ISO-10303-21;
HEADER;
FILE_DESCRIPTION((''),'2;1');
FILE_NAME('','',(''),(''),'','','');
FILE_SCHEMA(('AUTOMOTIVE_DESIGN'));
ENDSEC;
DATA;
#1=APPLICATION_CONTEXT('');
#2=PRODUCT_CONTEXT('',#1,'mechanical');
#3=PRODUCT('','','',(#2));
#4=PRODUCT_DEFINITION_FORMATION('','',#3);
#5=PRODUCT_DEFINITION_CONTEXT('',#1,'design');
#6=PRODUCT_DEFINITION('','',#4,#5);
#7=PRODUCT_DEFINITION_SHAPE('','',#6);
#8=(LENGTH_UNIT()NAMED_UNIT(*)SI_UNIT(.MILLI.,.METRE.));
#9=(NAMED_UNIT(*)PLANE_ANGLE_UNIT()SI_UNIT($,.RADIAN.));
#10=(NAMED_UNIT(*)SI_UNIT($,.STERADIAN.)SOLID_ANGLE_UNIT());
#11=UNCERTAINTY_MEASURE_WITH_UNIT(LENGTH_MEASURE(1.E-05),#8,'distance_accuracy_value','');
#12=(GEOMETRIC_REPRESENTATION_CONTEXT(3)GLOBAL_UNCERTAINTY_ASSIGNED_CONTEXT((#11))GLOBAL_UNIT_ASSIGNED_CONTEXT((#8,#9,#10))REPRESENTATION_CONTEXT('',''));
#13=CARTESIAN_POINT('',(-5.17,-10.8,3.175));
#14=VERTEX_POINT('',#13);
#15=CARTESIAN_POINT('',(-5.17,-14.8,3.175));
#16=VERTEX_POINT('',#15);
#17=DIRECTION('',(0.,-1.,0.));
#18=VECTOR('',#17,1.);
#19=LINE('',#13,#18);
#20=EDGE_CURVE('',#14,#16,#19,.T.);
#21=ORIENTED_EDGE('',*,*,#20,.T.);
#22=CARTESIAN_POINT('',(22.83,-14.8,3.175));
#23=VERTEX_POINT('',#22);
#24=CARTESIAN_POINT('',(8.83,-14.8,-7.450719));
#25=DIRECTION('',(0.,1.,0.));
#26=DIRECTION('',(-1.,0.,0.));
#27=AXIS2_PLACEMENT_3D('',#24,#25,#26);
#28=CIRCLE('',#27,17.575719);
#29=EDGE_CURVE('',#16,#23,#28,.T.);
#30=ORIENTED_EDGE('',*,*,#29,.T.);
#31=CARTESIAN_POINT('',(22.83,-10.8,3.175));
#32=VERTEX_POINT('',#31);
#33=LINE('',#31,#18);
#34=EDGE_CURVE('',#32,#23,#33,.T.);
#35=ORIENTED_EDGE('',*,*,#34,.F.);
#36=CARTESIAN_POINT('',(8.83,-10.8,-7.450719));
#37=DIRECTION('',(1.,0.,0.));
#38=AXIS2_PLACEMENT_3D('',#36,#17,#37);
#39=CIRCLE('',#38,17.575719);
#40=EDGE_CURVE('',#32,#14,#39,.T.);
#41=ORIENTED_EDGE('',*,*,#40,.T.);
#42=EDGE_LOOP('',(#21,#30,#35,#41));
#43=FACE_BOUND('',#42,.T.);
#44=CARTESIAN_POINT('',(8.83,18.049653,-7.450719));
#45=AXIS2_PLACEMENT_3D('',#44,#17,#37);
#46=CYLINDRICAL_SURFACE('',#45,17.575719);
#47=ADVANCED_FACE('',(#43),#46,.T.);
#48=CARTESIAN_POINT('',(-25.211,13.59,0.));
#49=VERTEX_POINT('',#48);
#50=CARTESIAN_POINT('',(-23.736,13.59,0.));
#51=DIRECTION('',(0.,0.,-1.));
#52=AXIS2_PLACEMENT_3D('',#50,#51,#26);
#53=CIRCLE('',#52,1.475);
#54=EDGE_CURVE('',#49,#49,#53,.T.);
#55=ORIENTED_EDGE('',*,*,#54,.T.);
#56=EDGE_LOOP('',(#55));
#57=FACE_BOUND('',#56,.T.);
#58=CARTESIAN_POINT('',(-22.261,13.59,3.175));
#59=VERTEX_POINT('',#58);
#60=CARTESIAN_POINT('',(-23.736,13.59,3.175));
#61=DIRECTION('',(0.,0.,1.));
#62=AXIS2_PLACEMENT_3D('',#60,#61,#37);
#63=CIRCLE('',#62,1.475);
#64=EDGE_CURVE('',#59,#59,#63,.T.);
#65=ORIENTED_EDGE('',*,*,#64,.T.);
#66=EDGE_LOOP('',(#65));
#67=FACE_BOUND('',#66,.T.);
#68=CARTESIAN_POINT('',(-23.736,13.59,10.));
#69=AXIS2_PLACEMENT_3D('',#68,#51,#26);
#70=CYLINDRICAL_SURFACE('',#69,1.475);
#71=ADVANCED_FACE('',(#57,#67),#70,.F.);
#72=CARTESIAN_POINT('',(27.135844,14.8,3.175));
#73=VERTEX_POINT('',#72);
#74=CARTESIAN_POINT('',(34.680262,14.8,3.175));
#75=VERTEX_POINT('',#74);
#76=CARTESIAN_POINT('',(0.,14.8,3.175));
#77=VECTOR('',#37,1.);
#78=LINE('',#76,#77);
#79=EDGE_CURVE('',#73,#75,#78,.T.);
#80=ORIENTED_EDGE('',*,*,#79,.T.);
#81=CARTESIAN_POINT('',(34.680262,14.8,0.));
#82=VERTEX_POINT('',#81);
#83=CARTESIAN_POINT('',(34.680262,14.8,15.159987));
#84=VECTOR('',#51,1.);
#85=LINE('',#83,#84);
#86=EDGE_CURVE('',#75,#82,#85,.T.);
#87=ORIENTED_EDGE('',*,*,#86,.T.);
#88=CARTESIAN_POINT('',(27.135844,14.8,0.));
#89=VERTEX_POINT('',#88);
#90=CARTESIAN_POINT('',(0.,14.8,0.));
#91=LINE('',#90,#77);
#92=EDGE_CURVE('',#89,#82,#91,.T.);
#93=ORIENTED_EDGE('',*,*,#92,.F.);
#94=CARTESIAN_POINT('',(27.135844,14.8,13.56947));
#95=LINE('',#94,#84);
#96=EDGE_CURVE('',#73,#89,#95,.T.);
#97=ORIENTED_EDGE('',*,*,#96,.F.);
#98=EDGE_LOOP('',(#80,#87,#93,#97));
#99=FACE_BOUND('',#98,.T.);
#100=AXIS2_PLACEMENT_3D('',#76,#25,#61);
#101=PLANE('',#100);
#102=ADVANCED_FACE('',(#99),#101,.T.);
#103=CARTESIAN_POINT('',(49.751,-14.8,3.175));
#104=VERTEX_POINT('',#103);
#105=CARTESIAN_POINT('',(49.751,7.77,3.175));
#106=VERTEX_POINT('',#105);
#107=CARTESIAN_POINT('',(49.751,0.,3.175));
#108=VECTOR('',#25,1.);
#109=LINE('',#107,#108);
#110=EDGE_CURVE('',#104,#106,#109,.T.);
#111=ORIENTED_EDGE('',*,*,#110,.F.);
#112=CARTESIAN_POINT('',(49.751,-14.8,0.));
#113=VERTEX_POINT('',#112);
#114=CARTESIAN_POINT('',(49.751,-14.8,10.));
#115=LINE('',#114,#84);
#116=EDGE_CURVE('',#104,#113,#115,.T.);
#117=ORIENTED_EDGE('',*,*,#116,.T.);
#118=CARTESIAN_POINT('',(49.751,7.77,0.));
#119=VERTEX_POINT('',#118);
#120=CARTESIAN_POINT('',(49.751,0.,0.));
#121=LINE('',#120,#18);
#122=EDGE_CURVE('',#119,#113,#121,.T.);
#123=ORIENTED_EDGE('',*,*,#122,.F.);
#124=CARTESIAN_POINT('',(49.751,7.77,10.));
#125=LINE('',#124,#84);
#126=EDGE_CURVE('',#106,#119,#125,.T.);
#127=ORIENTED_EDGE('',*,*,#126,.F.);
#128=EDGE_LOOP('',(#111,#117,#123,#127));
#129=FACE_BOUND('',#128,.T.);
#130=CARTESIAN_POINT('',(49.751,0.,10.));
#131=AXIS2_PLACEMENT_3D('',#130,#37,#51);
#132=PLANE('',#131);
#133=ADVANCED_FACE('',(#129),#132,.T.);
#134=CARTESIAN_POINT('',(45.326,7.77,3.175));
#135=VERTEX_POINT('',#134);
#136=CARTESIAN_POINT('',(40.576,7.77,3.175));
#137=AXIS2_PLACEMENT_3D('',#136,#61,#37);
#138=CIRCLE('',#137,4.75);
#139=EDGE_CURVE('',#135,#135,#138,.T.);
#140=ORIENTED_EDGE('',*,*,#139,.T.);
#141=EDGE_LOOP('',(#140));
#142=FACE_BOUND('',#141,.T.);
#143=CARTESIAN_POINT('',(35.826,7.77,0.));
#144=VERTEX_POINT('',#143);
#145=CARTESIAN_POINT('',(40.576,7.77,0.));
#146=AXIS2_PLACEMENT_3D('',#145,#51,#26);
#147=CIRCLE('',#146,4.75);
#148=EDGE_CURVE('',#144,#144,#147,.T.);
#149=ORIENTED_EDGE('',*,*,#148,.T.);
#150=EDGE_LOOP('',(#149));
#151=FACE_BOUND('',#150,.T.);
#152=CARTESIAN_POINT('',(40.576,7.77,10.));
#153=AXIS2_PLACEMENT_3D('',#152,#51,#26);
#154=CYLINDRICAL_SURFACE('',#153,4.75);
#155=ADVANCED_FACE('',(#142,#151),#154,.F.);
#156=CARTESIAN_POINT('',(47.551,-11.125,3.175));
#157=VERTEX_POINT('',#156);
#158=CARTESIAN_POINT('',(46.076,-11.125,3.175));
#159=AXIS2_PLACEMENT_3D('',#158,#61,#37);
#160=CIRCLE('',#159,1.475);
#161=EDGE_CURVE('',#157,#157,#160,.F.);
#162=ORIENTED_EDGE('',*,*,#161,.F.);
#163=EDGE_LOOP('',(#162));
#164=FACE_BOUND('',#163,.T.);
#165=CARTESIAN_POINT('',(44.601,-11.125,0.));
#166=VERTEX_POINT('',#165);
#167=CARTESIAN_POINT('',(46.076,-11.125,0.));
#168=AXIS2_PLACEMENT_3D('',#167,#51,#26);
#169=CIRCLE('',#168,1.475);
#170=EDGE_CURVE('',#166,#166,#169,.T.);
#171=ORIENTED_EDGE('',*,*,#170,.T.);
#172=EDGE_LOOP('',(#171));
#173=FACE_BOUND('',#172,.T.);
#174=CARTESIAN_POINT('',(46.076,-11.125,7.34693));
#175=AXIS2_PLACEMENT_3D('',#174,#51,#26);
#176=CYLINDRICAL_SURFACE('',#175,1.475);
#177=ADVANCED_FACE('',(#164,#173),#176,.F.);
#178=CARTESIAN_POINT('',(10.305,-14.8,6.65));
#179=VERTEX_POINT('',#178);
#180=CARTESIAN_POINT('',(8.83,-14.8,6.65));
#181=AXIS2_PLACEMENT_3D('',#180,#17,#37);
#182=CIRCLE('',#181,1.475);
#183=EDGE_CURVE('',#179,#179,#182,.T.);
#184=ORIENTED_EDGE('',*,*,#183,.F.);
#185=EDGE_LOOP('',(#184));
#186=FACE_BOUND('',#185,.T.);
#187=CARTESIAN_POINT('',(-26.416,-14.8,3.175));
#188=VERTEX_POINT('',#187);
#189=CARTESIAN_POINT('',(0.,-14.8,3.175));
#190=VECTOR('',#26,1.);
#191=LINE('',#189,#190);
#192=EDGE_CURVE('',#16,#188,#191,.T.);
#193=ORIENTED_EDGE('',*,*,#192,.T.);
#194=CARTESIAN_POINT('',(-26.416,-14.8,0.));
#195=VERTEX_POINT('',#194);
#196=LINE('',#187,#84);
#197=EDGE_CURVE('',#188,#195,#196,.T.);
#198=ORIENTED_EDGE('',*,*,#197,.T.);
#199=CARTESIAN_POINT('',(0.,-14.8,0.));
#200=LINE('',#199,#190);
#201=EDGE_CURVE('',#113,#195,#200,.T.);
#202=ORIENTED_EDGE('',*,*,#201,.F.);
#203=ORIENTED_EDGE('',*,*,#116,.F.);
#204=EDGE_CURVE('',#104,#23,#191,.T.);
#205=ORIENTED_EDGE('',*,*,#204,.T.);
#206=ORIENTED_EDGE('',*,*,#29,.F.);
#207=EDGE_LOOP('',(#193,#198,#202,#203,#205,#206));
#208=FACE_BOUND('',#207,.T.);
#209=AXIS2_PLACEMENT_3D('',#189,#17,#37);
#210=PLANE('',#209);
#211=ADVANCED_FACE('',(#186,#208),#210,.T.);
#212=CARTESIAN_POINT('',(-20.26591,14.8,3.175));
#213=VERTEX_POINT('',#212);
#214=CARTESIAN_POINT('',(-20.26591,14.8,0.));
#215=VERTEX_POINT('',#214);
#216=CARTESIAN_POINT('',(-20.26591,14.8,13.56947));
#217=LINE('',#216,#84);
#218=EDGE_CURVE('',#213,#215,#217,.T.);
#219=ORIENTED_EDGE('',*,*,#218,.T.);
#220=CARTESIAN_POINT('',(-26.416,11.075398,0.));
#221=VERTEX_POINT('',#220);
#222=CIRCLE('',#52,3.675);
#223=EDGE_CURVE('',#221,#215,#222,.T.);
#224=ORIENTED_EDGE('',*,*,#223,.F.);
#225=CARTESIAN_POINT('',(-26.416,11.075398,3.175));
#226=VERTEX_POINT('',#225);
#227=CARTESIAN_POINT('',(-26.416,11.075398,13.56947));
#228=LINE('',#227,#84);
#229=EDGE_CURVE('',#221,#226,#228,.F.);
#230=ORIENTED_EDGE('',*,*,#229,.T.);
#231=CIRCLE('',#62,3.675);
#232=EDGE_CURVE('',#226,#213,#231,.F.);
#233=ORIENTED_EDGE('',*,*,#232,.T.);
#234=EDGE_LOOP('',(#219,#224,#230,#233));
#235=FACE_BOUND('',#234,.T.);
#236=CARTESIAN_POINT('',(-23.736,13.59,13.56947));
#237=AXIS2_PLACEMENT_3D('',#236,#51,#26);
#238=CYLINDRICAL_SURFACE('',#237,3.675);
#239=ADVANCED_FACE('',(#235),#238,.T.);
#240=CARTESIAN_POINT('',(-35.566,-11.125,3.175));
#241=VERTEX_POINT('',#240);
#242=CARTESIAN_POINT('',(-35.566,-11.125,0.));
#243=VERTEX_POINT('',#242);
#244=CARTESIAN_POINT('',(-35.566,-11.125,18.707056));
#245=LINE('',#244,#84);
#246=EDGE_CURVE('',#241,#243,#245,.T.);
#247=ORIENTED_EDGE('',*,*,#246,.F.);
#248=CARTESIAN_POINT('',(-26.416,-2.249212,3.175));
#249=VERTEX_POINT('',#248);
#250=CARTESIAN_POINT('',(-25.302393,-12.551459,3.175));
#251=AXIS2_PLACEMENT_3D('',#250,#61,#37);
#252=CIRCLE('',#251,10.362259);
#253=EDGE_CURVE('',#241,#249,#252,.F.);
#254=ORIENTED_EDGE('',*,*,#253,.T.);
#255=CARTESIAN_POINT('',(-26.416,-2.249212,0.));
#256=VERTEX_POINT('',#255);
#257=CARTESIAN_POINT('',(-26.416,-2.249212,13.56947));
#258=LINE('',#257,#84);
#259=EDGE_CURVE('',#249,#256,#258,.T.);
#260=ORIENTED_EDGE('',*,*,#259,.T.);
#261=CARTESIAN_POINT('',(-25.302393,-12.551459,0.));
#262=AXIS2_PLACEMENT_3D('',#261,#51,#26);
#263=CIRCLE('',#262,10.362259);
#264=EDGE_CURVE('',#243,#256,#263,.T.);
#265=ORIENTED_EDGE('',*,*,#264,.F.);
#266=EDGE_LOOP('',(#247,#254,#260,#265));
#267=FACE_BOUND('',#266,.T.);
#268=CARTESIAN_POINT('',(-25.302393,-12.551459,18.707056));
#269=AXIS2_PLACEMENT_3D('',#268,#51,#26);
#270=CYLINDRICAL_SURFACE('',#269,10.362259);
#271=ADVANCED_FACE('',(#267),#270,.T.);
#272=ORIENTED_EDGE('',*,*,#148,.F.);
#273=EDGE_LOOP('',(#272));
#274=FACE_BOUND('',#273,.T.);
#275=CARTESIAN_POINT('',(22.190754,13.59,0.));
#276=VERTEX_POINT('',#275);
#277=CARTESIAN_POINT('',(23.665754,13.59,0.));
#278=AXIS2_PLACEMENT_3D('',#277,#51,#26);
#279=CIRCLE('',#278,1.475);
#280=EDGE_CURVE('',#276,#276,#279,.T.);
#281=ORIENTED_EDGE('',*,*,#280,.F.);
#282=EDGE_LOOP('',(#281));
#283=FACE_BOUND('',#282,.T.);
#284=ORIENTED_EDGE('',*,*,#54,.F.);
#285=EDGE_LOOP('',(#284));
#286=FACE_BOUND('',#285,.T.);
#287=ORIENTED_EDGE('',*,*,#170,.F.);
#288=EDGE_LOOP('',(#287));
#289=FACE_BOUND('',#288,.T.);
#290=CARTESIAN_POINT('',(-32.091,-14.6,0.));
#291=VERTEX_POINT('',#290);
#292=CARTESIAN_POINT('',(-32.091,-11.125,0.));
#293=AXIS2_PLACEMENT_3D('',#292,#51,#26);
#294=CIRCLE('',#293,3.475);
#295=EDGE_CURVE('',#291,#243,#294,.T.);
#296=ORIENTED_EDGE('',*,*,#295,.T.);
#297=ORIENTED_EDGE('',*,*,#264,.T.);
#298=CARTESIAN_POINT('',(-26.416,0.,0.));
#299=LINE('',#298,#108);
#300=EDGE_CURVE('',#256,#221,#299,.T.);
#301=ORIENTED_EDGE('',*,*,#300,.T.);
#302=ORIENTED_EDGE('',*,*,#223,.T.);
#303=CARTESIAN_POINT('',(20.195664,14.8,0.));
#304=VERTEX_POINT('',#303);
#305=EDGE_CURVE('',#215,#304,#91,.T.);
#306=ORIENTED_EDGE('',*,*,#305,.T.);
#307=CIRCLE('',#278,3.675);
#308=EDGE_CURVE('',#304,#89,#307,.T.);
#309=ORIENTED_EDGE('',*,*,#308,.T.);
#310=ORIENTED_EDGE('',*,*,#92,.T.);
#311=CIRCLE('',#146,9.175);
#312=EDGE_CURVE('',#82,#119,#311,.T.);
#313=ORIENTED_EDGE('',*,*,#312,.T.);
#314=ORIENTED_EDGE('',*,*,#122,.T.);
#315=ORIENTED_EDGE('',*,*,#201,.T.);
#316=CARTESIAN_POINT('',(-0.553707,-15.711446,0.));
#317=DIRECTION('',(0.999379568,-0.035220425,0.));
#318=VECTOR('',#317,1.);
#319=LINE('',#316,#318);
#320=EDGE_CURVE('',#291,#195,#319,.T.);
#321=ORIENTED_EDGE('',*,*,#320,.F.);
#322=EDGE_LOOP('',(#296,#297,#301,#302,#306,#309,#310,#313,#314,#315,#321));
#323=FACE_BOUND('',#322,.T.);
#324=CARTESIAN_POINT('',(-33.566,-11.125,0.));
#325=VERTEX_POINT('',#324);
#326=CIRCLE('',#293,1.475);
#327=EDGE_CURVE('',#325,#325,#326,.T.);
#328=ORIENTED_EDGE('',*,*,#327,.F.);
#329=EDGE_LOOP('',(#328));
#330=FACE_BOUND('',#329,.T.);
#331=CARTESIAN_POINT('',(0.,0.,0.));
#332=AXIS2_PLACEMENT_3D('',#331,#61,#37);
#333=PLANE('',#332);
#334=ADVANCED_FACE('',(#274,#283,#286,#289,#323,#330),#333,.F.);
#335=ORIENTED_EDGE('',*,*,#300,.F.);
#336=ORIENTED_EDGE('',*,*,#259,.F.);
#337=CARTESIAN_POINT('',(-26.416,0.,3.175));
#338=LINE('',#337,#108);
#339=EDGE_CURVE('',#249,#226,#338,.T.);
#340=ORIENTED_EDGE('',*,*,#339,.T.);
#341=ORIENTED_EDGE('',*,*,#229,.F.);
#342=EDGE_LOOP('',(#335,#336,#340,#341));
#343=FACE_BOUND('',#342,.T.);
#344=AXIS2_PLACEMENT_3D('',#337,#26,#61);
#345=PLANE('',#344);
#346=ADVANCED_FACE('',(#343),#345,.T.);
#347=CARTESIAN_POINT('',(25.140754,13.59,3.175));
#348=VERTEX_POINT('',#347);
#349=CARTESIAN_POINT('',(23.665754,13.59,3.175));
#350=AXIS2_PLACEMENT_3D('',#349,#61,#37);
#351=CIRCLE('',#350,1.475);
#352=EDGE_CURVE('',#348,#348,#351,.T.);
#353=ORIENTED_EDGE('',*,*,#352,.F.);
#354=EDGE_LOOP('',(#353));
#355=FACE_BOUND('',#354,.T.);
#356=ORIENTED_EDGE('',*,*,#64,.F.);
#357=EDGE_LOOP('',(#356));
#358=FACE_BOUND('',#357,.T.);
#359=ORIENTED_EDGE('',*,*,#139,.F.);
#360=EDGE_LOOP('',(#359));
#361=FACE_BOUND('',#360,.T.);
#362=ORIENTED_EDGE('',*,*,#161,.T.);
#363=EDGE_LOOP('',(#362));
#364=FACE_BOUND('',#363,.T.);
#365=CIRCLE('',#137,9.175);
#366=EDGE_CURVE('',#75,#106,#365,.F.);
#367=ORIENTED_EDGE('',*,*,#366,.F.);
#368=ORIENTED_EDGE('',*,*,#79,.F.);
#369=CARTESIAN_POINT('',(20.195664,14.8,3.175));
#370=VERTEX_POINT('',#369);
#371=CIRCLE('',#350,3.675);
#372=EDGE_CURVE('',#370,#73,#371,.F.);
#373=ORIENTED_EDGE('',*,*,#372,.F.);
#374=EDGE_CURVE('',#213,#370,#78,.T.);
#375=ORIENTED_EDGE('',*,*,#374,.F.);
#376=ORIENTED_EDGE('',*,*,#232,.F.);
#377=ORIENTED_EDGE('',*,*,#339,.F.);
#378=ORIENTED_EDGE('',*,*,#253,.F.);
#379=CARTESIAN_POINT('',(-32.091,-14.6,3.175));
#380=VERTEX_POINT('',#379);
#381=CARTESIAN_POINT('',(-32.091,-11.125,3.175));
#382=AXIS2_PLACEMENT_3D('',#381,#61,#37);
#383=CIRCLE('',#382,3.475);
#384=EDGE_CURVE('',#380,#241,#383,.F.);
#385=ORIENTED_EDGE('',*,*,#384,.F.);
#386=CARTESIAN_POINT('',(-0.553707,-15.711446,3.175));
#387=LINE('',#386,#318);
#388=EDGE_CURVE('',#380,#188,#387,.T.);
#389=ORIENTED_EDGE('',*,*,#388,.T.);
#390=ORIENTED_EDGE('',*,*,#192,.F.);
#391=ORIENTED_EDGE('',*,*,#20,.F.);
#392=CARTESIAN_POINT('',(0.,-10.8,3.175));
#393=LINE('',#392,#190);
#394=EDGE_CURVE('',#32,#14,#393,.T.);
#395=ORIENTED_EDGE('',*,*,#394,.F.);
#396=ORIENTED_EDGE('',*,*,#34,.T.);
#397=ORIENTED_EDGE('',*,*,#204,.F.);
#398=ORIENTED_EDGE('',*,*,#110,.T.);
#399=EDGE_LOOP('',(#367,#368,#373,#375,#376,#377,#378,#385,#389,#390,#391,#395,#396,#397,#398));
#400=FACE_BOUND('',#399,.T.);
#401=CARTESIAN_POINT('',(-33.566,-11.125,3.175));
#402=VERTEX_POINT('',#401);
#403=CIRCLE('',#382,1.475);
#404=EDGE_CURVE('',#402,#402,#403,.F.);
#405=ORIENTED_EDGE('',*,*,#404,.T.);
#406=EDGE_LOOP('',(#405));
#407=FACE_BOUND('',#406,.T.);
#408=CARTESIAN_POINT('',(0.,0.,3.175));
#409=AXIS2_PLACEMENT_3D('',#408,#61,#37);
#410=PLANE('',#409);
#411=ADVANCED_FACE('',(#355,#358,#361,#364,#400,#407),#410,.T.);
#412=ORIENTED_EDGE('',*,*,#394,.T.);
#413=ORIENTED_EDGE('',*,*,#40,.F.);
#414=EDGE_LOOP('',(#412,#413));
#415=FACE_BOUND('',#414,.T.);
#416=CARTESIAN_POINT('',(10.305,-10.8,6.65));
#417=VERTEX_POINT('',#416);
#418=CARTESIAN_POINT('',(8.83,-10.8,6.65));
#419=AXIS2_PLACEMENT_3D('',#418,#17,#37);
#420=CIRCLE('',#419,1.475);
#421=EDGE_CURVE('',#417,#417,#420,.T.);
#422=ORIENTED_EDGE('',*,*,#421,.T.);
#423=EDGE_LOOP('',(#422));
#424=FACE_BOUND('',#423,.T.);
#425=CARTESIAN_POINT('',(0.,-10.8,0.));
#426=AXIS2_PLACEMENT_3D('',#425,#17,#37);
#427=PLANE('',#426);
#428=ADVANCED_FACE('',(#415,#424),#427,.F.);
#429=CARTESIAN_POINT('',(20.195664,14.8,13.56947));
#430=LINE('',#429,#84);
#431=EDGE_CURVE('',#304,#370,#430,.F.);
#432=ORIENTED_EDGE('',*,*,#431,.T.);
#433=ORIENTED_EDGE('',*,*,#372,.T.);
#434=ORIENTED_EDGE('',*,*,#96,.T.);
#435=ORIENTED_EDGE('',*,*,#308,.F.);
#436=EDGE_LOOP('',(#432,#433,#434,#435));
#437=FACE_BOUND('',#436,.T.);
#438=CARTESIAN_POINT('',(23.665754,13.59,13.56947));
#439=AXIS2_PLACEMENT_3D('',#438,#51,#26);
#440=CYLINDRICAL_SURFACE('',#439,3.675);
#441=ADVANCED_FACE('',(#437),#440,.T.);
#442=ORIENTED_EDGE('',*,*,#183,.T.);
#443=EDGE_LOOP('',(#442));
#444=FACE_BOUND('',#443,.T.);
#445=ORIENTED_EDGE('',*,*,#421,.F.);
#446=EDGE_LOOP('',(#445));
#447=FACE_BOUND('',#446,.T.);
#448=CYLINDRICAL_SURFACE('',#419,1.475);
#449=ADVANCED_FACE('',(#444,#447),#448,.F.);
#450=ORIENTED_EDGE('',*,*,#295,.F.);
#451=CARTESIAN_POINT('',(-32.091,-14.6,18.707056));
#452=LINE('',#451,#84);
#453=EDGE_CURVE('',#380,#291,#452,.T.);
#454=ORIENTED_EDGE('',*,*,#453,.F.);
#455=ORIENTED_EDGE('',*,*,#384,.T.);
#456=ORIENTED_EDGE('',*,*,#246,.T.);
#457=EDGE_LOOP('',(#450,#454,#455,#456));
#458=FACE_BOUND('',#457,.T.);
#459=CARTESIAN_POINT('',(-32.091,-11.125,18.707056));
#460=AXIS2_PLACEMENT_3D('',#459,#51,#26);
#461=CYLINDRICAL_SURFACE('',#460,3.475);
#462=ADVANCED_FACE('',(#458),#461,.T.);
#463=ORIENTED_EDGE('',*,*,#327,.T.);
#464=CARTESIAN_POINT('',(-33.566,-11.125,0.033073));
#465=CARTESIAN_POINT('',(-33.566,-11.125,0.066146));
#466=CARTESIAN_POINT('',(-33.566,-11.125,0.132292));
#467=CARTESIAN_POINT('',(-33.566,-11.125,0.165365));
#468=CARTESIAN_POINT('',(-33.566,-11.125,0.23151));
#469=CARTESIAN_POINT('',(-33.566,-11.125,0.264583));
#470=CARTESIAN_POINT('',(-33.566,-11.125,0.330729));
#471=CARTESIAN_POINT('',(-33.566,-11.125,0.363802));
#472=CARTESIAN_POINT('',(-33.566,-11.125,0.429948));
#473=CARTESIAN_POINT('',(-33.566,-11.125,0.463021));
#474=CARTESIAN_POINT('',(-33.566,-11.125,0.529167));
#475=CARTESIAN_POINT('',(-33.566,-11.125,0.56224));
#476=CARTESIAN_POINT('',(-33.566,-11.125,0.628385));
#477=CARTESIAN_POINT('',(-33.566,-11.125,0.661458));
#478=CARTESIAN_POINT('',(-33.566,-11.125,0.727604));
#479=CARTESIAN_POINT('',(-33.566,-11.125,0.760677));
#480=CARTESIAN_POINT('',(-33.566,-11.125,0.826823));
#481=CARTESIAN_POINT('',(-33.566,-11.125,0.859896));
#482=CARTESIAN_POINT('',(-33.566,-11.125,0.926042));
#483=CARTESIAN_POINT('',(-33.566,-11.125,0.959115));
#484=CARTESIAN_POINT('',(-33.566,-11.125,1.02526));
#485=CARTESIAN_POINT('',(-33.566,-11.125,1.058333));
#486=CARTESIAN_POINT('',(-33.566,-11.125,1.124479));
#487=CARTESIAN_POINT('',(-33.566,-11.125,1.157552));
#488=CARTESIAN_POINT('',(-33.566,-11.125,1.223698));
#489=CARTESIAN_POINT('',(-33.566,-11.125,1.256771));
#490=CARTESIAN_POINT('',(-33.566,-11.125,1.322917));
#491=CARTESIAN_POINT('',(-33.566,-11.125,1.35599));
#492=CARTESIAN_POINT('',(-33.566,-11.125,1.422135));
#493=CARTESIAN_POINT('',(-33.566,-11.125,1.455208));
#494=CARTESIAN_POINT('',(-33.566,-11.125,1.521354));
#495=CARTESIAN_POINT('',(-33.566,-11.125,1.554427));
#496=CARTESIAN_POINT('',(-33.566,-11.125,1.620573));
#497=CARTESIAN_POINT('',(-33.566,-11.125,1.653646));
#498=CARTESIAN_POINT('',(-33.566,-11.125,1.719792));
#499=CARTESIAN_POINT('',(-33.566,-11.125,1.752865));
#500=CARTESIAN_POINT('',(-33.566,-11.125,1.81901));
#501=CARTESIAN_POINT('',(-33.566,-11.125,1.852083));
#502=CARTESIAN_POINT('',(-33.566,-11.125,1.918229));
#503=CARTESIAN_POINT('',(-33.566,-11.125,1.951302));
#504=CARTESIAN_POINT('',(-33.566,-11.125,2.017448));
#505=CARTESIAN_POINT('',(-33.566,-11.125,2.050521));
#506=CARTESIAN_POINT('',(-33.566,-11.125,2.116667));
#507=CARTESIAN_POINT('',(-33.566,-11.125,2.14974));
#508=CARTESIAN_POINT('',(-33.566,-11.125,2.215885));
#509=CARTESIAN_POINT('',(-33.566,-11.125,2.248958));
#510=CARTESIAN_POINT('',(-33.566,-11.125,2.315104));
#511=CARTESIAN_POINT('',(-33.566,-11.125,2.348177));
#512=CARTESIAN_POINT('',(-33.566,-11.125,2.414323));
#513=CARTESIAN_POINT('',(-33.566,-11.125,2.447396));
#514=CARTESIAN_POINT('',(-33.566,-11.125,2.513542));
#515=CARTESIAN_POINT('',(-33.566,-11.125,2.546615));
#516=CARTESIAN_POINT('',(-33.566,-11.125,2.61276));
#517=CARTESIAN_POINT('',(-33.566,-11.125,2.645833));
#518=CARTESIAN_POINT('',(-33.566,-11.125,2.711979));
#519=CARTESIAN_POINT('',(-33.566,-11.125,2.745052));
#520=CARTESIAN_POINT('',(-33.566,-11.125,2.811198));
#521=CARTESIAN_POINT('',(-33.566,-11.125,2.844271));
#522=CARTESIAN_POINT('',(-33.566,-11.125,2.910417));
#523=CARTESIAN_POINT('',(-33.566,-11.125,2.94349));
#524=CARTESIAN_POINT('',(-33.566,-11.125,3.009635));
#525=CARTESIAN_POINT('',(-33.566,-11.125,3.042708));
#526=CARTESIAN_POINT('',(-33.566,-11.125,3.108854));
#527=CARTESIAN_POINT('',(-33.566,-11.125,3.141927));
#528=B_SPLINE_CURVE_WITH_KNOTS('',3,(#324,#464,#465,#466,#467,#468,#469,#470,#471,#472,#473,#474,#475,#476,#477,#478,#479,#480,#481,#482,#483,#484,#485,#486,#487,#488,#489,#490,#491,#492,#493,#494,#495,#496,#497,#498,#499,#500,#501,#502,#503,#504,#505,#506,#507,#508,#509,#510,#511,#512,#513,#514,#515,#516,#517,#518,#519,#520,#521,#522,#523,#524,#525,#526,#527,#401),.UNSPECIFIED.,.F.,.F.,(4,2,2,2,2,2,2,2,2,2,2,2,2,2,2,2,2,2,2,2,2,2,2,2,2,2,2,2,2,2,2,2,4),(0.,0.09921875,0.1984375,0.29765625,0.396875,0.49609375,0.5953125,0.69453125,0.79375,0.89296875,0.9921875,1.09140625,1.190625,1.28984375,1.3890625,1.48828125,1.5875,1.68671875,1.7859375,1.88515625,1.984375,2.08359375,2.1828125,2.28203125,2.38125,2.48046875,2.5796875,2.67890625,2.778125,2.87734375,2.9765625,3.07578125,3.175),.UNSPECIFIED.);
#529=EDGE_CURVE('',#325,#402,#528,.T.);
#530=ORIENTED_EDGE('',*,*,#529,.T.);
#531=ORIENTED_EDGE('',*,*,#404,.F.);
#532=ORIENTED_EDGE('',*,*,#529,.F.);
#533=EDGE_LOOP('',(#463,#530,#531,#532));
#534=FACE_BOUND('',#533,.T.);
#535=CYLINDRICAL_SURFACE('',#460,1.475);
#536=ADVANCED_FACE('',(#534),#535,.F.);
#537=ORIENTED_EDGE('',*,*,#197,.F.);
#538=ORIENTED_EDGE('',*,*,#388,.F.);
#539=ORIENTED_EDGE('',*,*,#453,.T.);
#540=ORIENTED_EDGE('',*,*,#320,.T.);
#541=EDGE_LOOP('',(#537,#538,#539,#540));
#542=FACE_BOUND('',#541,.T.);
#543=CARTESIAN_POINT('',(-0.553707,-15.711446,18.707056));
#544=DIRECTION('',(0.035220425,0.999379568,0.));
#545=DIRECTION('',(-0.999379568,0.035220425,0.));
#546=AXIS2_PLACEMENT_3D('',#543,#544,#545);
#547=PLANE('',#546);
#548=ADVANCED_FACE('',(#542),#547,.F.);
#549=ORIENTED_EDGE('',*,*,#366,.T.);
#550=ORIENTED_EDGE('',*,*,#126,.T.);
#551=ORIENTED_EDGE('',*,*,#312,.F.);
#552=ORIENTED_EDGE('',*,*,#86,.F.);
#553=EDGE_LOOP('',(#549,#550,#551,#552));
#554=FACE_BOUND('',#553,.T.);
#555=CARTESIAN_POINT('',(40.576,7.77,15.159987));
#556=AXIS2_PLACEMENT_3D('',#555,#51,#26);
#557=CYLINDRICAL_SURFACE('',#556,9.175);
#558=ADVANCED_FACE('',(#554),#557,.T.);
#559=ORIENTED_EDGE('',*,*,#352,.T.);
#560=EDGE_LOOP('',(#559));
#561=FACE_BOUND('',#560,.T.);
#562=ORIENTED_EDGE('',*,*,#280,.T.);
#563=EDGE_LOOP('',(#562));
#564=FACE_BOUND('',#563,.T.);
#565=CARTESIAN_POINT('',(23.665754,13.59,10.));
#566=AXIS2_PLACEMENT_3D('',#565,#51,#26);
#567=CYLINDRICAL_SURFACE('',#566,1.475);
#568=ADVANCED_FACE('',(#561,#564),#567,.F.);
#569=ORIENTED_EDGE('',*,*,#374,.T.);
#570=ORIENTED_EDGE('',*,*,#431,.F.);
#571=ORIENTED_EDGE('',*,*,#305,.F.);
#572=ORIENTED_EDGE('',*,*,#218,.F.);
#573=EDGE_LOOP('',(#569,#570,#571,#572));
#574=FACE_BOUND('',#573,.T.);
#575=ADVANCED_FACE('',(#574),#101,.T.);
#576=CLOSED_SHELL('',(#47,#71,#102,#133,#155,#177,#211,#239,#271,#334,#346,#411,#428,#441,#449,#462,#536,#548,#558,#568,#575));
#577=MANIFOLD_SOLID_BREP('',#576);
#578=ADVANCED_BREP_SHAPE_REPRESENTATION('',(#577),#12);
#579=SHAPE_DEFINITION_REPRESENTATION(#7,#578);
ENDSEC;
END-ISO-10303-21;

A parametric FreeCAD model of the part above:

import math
import FreeCAD as App
import Part
import Sketcher

V = App.Vector
Q = App.Units.Quantity


def add_polygon(sketch, points):
    """Adds a closed chain of lines whose ends are joined by coincident constraints."""
    first, n = sketch.GeometryCount, len(points)
    for a, b in zip(points, points[1:] + points[:1]):
        sketch.addGeometry(Part.LineSegment(App.Vector(*a, 0), App.Vector(*b, 0)), False)
    for i in range(n):
        sketch.addConstraint(Sketcher.Constraint("Coincident", first + i, 2, first + (i + 1) % n, 1))

doc = App.newDocument("Part")
body = doc.addObject("PartDesign::Body", "Body")

sketch1 = doc.addObject("Sketcher::SketchObject", "Sketch")
body.addObject(sketch1)
sketch1.AttachmentSupport = (doc.XY_Plane, [""])
sketch1.MapMode = "FlatFace"
add_polygon(sketch1, [(-26.416, -14.8), (26.416, -14.8), (26.416, 14.8), (-26.416, 14.8)])
add_polygon(sketch1, [(-20.15, -9.8), (-20.15, 9.8), (20.15, 9.8), (20.15, -9.8)])
sketch1.addGeometry(Part.Circle(V(-23.95, -4.974, 0), V(0, 0, 1), 1.675), False)
sketch1.addGeometry(Part.Circle(V(-23.95, 4.974, 0), V(0, 0, 1), 1.675), False)
sketch1.addGeometry(Part.Circle(V(23.95, 4.974, 0), V(0, 0, 1), 1.675), False)
sketch1.addGeometry(Part.Circle(V(23.95, -4.974, 0), V(0, 0, 1), 1.675), False)
sketch1.addConstraint(Sketcher.Constraint("Horizontal", 0))
sketch1.addConstraint(Sketcher.Constraint("Vertical", 1))
sketch1.addConstraint(Sketcher.Constraint("Horizontal", 2))
sketch1.addConstraint(Sketcher.Constraint("Vertical", 3))
sketch1.addConstraint(Sketcher.Constraint("Vertical", 4))
sketch1.addConstraint(Sketcher.Constraint("Horizontal", 5))
sketch1.addConstraint(Sketcher.Constraint("Vertical", 6))
sketch1.addConstraint(Sketcher.Constraint("Horizontal", 7))
sketch1.addConstraint(Sketcher.Constraint("Equal", 8, 9))
sketch1.addConstraint(Sketcher.Constraint("Equal", 9, 10))
sketch1.addConstraint(Sketcher.Constraint("Equal", 10, 11))
sketch1.addConstraint(Sketcher.Constraint("Symmetric", 8, 3, 10, 3, -1, 1))
sketch1.addConstraint(Sketcher.Constraint("Symmetric", 9, 3, 11, 3, -1, 1))
sketch1.addConstraint(Sketcher.Constraint("Symmetric", 0, 2, 2, 2, -1, 1))
sketch1.addConstraint(Sketcher.Constraint("Symmetric", 4, 2, 6, 2, -1, 1))
sketch1.addConstraint(Sketcher.Constraint("Symmetric", 9, 3, 10, 3, -2))
sketch1.addConstraint(Sketcher.Constraint("Diameter", 8, Q("3.35 mm")))
sketch1.addConstraint(Sketcher.Constraint("DistanceX", 5, 1, 5, 2, Q("40.3 mm")))
sketch1.addConstraint(Sketcher.Constraint("DistanceY", 1, 1, 1, 2, Q("29.6 mm")))
sketch1.addConstraint(Sketcher.Constraint("DistanceY", 4, 1, 4, 2, Q("19.6 mm")))
sketch1.addConstraint(Sketcher.Constraint("DistanceX", 9, 3, 10, 3, Q("47.9 mm")))
sketch1.addConstraint(Sketcher.Constraint("DistanceX", 0, 1, 0, 2, Q("52.832 mm")))
sketch1.addConstraint(Sketcher.Constraint("DistanceY", 8, 3, -1, 1, Q("4.974 mm")))
pad1 = doc.addObject("PartDesign::Pad", "Pad")
body.addObject(pad1)
pad1.Profile = sketch1
pad1.Length = 3.175

sketch2 = doc.addObject("Sketcher::SketchObject", "Sketch001")
body.addObject(sketch2)
sketch2.AttachmentSupport = (doc.XY_Plane, [""])
sketch2.MapMode = "FlatFace"
sketch2.AttachmentOffset = App.Placement(V(0, 0, 3.175), App.Rotation())
add_polygon(sketch2, [(26.416, 14.8), (26.416, -14.8), (56.416, -14.8), (56.416, 14.8)])
sketch2.addConstraint(Sketcher.Constraint("Vertical", 0))
sketch2.addConstraint(Sketcher.Constraint("Horizontal", 1))
sketch2.addConstraint(Sketcher.Constraint("Vertical", 2))
sketch2.addConstraint(Sketcher.Constraint("Horizontal", 3))
sketch2.addConstraint(Sketcher.Constraint("DistanceX", 1, 1, 1, 2, Q("30 mm")))
sketch2.addConstraint(Sketcher.Constraint("DistanceY", 0, 2, 0, 1, Q("29.6 mm")))
sketch2.addConstraint(Sketcher.Constraint("DistanceY", 0, 2, -1, 1, Q("14.8 mm")))
sketch2.addConstraint(Sketcher.Constraint("DistanceX", -1, 1, 0, 2, Q("26.416 mm")))
pad2 = doc.addObject("PartDesign::Pad", "Pad001")
body.addObject(pad2)
pad2.Profile = sketch2
pad2.Length = 3.175
pad2.Reversed = True

sketch3 = doc.addObject("Sketcher::SketchObject", "Sketch002")
body.addObject(sketch3)
sketch3.AttachmentSupport = (doc.XY_Plane, [""])
sketch3.MapMode = "FlatFace"
sketch3.addGeometry(Part.Circle(V(40.576, 7.77, 0), V(0, 0, 1), 4.75), False)
sketch3.addConstraint(Sketcher.Constraint("Diameter", 0, Q("9.5 mm")))
sketch3.addConstraint(Sketcher.Constraint("DistanceY", -1, 1, 0, 3, Q("7.77 mm")))
sketch3.addConstraint(Sketcher.Constraint("DistanceX", -1, 1, 0, 3, Q("40.576 mm")))
pocket1 = doc.addObject("PartDesign::Pocket", "Pocket")
body.addObject(pocket1)
pocket1.Profile = sketch3
pocket1.Length = 10
pocket1.Reversed = True

sketch4 = doc.addObject("Sketcher::SketchObject", "Sketch003")
body.addObject(sketch4)
sketch4.AttachmentSupport = (doc.XY_Plane, [""])
sketch4.MapMode = "FlatFace"
sketch4.addGeometry(Part.ArcOfCircle(Part.Circle(V(40.576, 7.77, 0), V(0, 0, 1), 9.175), math.radians(50.014985), math.radians(129.985015)), False)
sketch4.addGeometry(Part.LineSegment(V(46.471738, 14.8, 0), V(34.680262, 14.8, 0)), False)
sketch4.addConstraint(Sketcher.Constraint("Coincident", 0, 1, 1, 1))
sketch4.addConstraint(Sketcher.Constraint("Coincident", 1, 2, 0, 2))
sketch4.addConstraint(Sketcher.Constraint("Horizontal", 1))
sketch4.addConstraint(Sketcher.Constraint("Radius", 0, Q("9.175 mm")))
sketch4.addConstraint(Sketcher.Constraint("DistanceY", -1, 1, 0, 1, Q("14.8 mm")))
sketch4.addConstraint(Sketcher.Constraint("DistanceY", -1, 1, 0, 3, Q("7.77 mm")))
sketch4.addConstraint(Sketcher.Constraint("DistanceX", -1, 1, 0, 3, Q("40.576 mm")))
pad3 = doc.addObject("PartDesign::Pad", "Pad002")
body.addObject(pad3)
pad3.Profile = sketch4
pad3.Length = 3.175

sketch5 = doc.addObject("Sketcher::SketchObject", "Sketch004")
body.addObject(sketch5)
sketch5.AttachmentSupport = (doc.XY_Plane, [""])
sketch5.MapMode = "FlatFace"
sketch5.addGeometry(Part.LineSegment(V(49.751, -14.8, 0), V(49.751, 7.77, 0)), False)
sketch5.addGeometry(Part.ArcOfCircle(Part.Circle(V(40.576, 7.77, 0), V(0, 0, 1), 9.175), math.radians(0), math.radians(50.014985)), False)
sketch5.addGeometry(Part.LineSegment(V(46.471738, 14.8, 0), V(56.416, 14.8, 0)), False)
sketch5.addGeometry(Part.LineSegment(V(56.416, 14.8, 0), V(56.416, -14.8, 0)), False)
sketch5.addGeometry(Part.LineSegment(V(56.416, -14.8, 0), V(49.751, -14.8, 0)), False)
sketch5.addConstraint(Sketcher.Constraint("Tangent", 0, 2, 1, 1))
sketch5.addConstraint(Sketcher.Constraint("Coincident", 1, 2, 2, 1))
sketch5.addConstraint(Sketcher.Constraint("Coincident", 2, 2, 3, 1))
sketch5.addConstraint(Sketcher.Constraint("Coincident", 3, 2, 4, 1))
sketch5.addConstraint(Sketcher.Constraint("Coincident", 4, 2, 0, 1))
sketch5.addConstraint(Sketcher.Constraint("Vertical", 0))
sketch5.addConstraint(Sketcher.Constraint("Horizontal", 2))
sketch5.addConstraint(Sketcher.Constraint("Vertical", 3))
sketch5.addConstraint(Sketcher.Constraint("Horizontal", 4))
sketch5.addConstraint(Sketcher.Constraint("DistanceY", 3, 2, 3, 1, Q("29.6 mm")))
sketch5.addConstraint(Sketcher.Constraint("Radius", 1, Q("9.175 mm")))
sketch5.addConstraint(Sketcher.Constraint("DistanceY", 0, 1, 0, 2, Q("22.57 mm")))
sketch5.addConstraint(Sketcher.Constraint("DistanceY", -1, 1, 1, 2, Q("14.8 mm")))
sketch5.addConstraint(Sketcher.Constraint("DistanceX", 4, 2, 4, 1, Q("6.665 mm")))
sketch5.addConstraint(Sketcher.Constraint("DistanceX", -1, 1, 1, 3, Q("40.576 mm")))
pocket2 = doc.addObject("PartDesign::Pocket", "Pocket001")
body.addObject(pocket2)
pocket2.Profile = sketch5
pocket2.Length = 10
pocket2.Reversed = True

sketch6 = doc.addObject("Sketcher::SketchObject", "Sketch005")
body.addObject(sketch6)
sketch6.AttachmentSupport = (doc.XY_Plane, [""])
sketch6.MapMode = "FlatFace"
sketch6.addGeometry(Part.Circle(V(-23.736, 13.59, 0), V(0, 0, 1), 1.475), False)
sketch6.addConstraint(Sketcher.Constraint("Diameter", 0, Q("2.95 mm")))
sketch6.addConstraint(Sketcher.Constraint("DistanceY", -1, 1, 0, 3, Q("13.59 mm")))
sketch6.addConstraint(Sketcher.Constraint("DistanceX", 0, 3, -1, 1, Q("23.736 mm")))
pocket3 = doc.addObject("PartDesign::Pocket", "Pocket002")
body.addObject(pocket3)
pocket3.Profile = sketch6
pocket3.Length = 10
pocket3.Reversed = True

sketch7 = doc.addObject("Sketcher::SketchObject", "Sketch006")
body.addObject(sketch7)
sketch7.AttachmentSupport = (doc.XY_Plane, [""])
sketch7.MapMode = "FlatFace"
sketch7.addGeometry(Part.Circle(V(-23.95, -4.974, 0), V(0, 0, 1), 3.675), False)
sketch7.addGeometry(Part.Circle(V(-23.95, -4.974, 0), V(0, 0, 1), 1.675), False)
sketch7.addGeometry(Part.Circle(V(-23.95, 4.974, 0), V(0, 0, 1), 3.675), False)
sketch7.addGeometry(Part.Circle(V(-23.95, 4.974, 0), V(0, 0, 1), 1.675), False)
sketch7.addGeometry(Part.Circle(V(-23.736, 13.59, 0), V(0, 0, 1), 3.675), False)
sketch7.addGeometry(Part.Circle(V(-23.736, 13.59, 0), V(0, 0, 1), 1.675), False)
sketch7.addConstraint(Sketcher.Constraint("Coincident", 1, 3, 0, 3))
sketch7.addConstraint(Sketcher.Constraint("Coincident", 3, 3, 2, 3))
sketch7.addConstraint(Sketcher.Constraint("Coincident", 5, 3, 4, 3))
sketch7.addConstraint(Sketcher.Constraint("Equal", 0, 2))
sketch7.addConstraint(Sketcher.Constraint("Equal", 1, 3))
sketch7.addConstraint(Sketcher.Constraint("Equal", 2, 4))
sketch7.addConstraint(Sketcher.Constraint("Equal", 3, 5))
sketch7.addConstraint(Sketcher.Constraint("Symmetric", 0, 3, 2, 3, -1))
sketch7.addConstraint(Sketcher.Constraint("Diameter", 0, Q("7.35 mm")))
sketch7.addConstraint(Sketcher.Constraint("Diameter", 1, Q("3.35 mm")))
sketch7.addConstraint(Sketcher.Constraint("DistanceX", 0, 3, -1, 1, Q("23.95 mm")))
sketch7.addConstraint(Sketcher.Constraint("DistanceY", -1, 1, 4, 3, Q("13.59 mm")))
sketch7.addConstraint(Sketcher.Constraint("DistanceY", 0, 3, -1, 1, Q("4.974 mm")))
sketch7.addConstraint(Sketcher.Constraint("DistanceX", 4, 3, -1, 1, Q("23.736 mm")))
pad4 = doc.addObject("PartDesign::Pad", "Pad003")
body.addObject(pad4)
pad4.Profile = sketch7
pad4.Length = 3.175

sketch8 = doc.addObject("Sketcher::SketchObject", "Sketch007")
body.addObject(sketch8)
sketch8.AttachmentSupport = (doc.XY_Plane, [""])
sketch8.MapMode = "FlatFace"
sketch8.addGeometry(Part.Circle(V(46.076, -11.125, 0), V(0, 0, 1), 1.475), False)
sketch8.addConstraint(Sketcher.Constraint("Diameter", 0, Q("2.95 mm")))
sketch8.addConstraint(Sketcher.Constraint("DistanceX", -1, 1, 0, 3, Q("46.076 mm")))
sketch8.addConstraint(Sketcher.Constraint("DistanceY", 0, 3, -1, 1, Q("11.125 mm")))
pocket4 = doc.addObject("PartDesign::Pocket", "Pocket003")
body.addObject(pocket4)
pocket4.Profile = sketch8
pocket4.Length = 3.175
pocket4.Reversed = True

sketch9 = doc.addObject("Sketcher::SketchObject", "Sketch008")
body.addObject(sketch9)
sketch9.AttachmentSupport = (doc.XY_Plane, [""])
sketch9.MapMode = "FlatFace"
sketch9.addGeometry(Part.ArcOfCircle(Part.Circle(V(23.665754, 13.59, 0), V(0, 0, 1), 1.475), math.radians(124.881258), math.radians(180)), False)
sketch9.addGeometry(Part.ArcOfCircle(Part.Circle(V(23.665754, 13.59, 0), V(0, 0, 1), 1.475), math.radians(55.118742), math.radians(124.881258)), False)
sketch9.addGeometry(Part.ArcOfCircle(Part.Circle(V(23.665754, 13.59, 0), V(0, 0, 1), 1.475), math.radians(180), math.radians(415.118742)), False)
sketch9.addConstraint(Sketcher.Constraint("Tangent", 0, 1, 1, 2))
sketch9.addConstraint(Sketcher.Constraint("Tangent", 1, 1, 2, 2))
sketch9.addConstraint(Sketcher.Constraint("Tangent", 2, 1, 0, 2))
sketch9.addConstraint(Sketcher.Constraint("Horizontal", 0, 1, 1, 1))
sketch9.addConstraint(Sketcher.Constraint("Horizontal", 1, 3, 2, 1))
sketch9.addConstraint(Sketcher.Constraint("Radius", 0, Q("1.475 mm")))
sketch9.addConstraint(Sketcher.Constraint("DistanceY", -1, 1, 0, 1, Q("14.8 mm")))
sketch9.addConstraint(Sketcher.Constraint("DistanceY", -1, 1, 0, 3, Q("13.59 mm")))
sketch9.addConstraint(Sketcher.Constraint("DistanceX", -1, 1, 0, 3, Q("23.665754 mm")))
pocket5 = doc.addObject("PartDesign::Pocket", "Pocket004")
body.addObject(pocket5)
pocket5.Profile = sketch9
pocket5.Length = 10
pocket5.Reversed = True

sketch10 = doc.addObject("Sketcher::SketchObject", "Sketch009")
body.addObject(sketch10)
sketch10.AttachmentSupport = (doc.XY_Plane, [""])
sketch10.MapMode = "FlatFace"
sketch10.addGeometry(Part.Circle(V(23.665754, 13.59, 0), V(0, 0, 1), 3.675), False)
sketch10.addGeometry(Part.Circle(V(23.665754, 13.59, 0), V(0, 0, 1), 1.675), False)
sketch10.addConstraint(Sketcher.Constraint("Coincident", 1, 3, 0, 3))
sketch10.addConstraint(Sketcher.Constraint("Diameter", 0, Q("7.35 mm")))
sketch10.addConstraint(Sketcher.Constraint("Diameter", 1, Q("3.35 mm")))
sketch10.addConstraint(Sketcher.Constraint("DistanceY", -1, 1, 0, 3, Q("13.59 mm")))
sketch10.addConstraint(Sketcher.Constraint("DistanceX", -1, 1, 0, 3, Q("23.665754 mm")))
pad5 = doc.addObject("PartDesign::Pad", "Pad004")
body.addObject(pad5)
pad5.Profile = sketch10
pad5.Length = 3.175

sketch11 = doc.addObject("Sketcher::SketchObject", "Sketch010")
body.addObject(sketch11)
sketch11.AttachmentSupport = (doc.XY_Plane, [""])
sketch11.MapMode = "FlatFace"
sketch11.addGeometry(Part.ArcOfCircle(Part.Circle(V(-25.302393, -12.551459, 0), V(0, 0, 1), 10.362259), math.radians(96.169354), math.radians(172.087589)), False)
sketch11.addGeometry(Part.LineSegment(V(-26.416, -2.249212, 0), V(-26.416, -14.8, 0)), False)
sketch11.addGeometry(Part.LineSegment(V(-26.416, -14.8, 0), V(-32.091, -14.6, 0)), False)
sketch11.addGeometry(Part.ArcOfCircle(Part.Circle(V(-32.091, -11.125, 0), V(0, 0, 1), 3.475), math.radians(180), math.radians(270)), False)
sketch11.addGeometry(Part.Circle(V(-32.091, -11.125, 0), V(0, 0, 1), 1.475), False)
sketch11.addConstraint(Sketcher.Constraint("Coincident", 0, 1, 1, 1))
sketch11.addConstraint(Sketcher.Constraint("Coincident", 1, 2, 2, 1))
sketch11.addConstraint(Sketcher.Constraint("Coincident", 2, 2, 3, 2))
sketch11.addConstraint(Sketcher.Constraint("Coincident", 3, 1, 0, 2))
sketch11.addConstraint(Sketcher.Constraint("Vertical", 1))
sketch11.addConstraint(Sketcher.Constraint("Coincident", 4, 3, 3, 3))
sketch11.addConstraint(Sketcher.Constraint("Horizontal", 4, 3, 3, 1))
sketch11.addConstraint(Sketcher.Constraint("Vertical", 4, 3, 2, 2))
sketch11.addConstraint(Sketcher.Constraint("Diameter", 4, Q("2.95 mm")))
sketch11.addConstraint(Sketcher.Constraint("Radius", 3, Q("3.475 mm")))
sketch11.addConstraint(Sketcher.Constraint("DistanceY", 1, 2, -1, 1, Q("14.8 mm")))
sketch11.addConstraint(Sketcher.Constraint("DistanceY", 2, 2, -1, 1, Q("14.6 mm")))
sketch11.addConstraint(Sketcher.Constraint("Radius", 0, Q("10.362259 mm")))
sketch11.addConstraint(Sketcher.Constraint("DistanceX", 3, 1, 1, 2, Q("9.15 mm")))
sketch11.addConstraint(Sketcher.Constraint("DistanceX", 3, 3, -1, 1, Q("32.091 mm")))
sketch11.addConstraint(Sketcher.Constraint("DistanceY", 1, 2, 1, 1, Q("12.550788 mm")))
pad6 = doc.addObject("PartDesign::Pad", "Pad005")
body.addObject(pad6)
pad6.Profile = sketch11
pad6.Length = 3.175

sketch12 = doc.addObject("Sketcher::SketchObject", "Sketch011")
body.addObject(sketch12)
sketch12.AttachmentSupport = (doc.XY_Plane, [""])
sketch12.MapMode = "FlatFace"
add_polygon(sketch12, [(26.298817, 10.812805), (26.298817, -10.679133), (-25.93752, -10.679133), (-25.93752, 10.812805)])
sketch12.addConstraint(Sketcher.Constraint("Vertical", 0))
sketch12.addConstraint(Sketcher.Constraint("Horizontal", 1))
sketch12.addConstraint(Sketcher.Constraint("Vertical", 2))
sketch12.addConstraint(Sketcher.Constraint("Horizontal", 3))
sketch12.addConstraint(Sketcher.Constraint("DistanceX", 1, 2, 1, 1, Q("52.236337 mm")))
sketch12.addConstraint(Sketcher.Constraint("DistanceY", 0, 2, 0, 1, Q("21.491938 mm")))
sketch12.addConstraint(Sketcher.Constraint("DistanceX", 1, 2, -1, 1, Q("25.93752 mm")))
sketch12.addConstraint(Sketcher.Constraint("DistanceY", 0, 2, -1, 1, Q("10.679133 mm")))
pad7 = doc.addObject("PartDesign::Pad", "Pad006")
body.addObject(pad7)
pad7.Profile = sketch12
pad7.Length = 3.175

sketch13 = doc.addObject("Sketcher::SketchObject", "Sketch012")
body.addObject(sketch13)
sketch13.AttachmentSupport = (doc.XY_Plane, [""])
sketch13.MapMode = "FlatFace"
add_polygon(sketch13, [(-26.416, 9.865702), (-26.416, 0.686095), (-31.474426, 3.163132)])
sketch13.addConstraint(Sketcher.Constraint("Vertical", 0))
sketch13.addConstraint(Sketcher.Constraint("DistanceX", 0, 2, -1, 1, Q("26.416 mm")))
sketch13.addConstraint(Sketcher.Constraint("Distance", 1, Q("5.632352 mm")))
sketch13.addConstraint(Sketcher.Constraint("Distance", 2, Q("8.39715 mm")))
sketch13.addConstraint(Sketcher.Constraint("DistanceY", 0, 2, 0, 1, Q("9.179607 mm")))
sketch13.addConstraint(Sketcher.Constraint("DistanceY", -1, 1, 1, 2, Q("3.163132 mm")))
pocket6 = doc.addObject("PartDesign::Pocket", "Pocket005")
body.addObject(pocket6)
pocket6.Profile = sketch13
pocket6.Length = 10
pocket6.Reversed = True

sketch14 = doc.addObject("Sketcher::SketchObject", "Sketch013")
body.addObject(sketch14)
sketch14.AttachmentSupport = (doc.XZ_Plane, [""])
sketch14.MapMode = "FlatFace"
sketch14.AttachmentOffset = App.Placement(V(0, 0, 14.8), App.Rotation())
sketch14.addGeometry(Part.ArcOfCircle(Part.Circle(V(5.270794, -14.620344, 0), V(0, 0, 1), 25), math.radians(45.38268), math.radians(81.81509)), False)
sketch14.addGeometry(Part.ArcOfCircle(Part.Circle(V(12.389206, -14.620344, 0), V(0, 0, 1), 25), math.radians(98.18491), math.radians(134.61732)), False)
sketch14.addGeometry(Part.LineSegment(V(-5.17, 3.175, 0), V(22.83, 3.175, 0)), False)
sketch14.addGeometry(Part.Circle(V(8.83, 6.65, 0), V(0, 0, 1), 1.475), False)
sketch14.addConstraint(Sketcher.Constraint("Coincident", 0, 2, 1, 1))
sketch14.addConstraint(Sketcher.Constraint("Coincident", 1, 2, 2, 1))
sketch14.addConstraint(Sketcher.Constraint("Coincident", 2, 2, 0, 1))
sketch14.addConstraint(Sketcher.Constraint("Horizontal", 2))
sketch14.addConstraint(Sketcher.Constraint("Equal", 0, 1))
sketch14.addConstraint(Sketcher.Constraint("Horizontal", 0, 3, 1, 3))
sketch14.addConstraint(Sketcher.Constraint("Vertical", 3, 3, 0, 2))
sketch14.addConstraint(Sketcher.Constraint("Radius", 0, Q("25 mm")))
sketch14.addConstraint(Sketcher.Constraint("Diameter", 3, Q("2.95 mm")))
sketch14.addConstraint(Sketcher.Constraint("DistanceX", 2, 1, 2, 2, Q("28 mm")))
sketch14.addConstraint(Sketcher.Constraint("DistanceX", -1, 1, 3, 3, Q("8.83 mm")))
sketch14.addConstraint(Sketcher.Constraint("DistanceY", -1, 1, 3, 3, Q("6.65 mm")))
sketch14.addConstraint(Sketcher.Constraint("DistanceY", 1, 2, 0, 2, Q("6.95 mm")))
sketch14.addConstraint(Sketcher.Constraint("DistanceY", -1, 1, 0, 2, Q("10.125 mm")))
pad8 = doc.addObject("PartDesign::Pad", "Pad007")
body.addObject(pad8)
pad8.Profile = sketch14
pad8.Length = 4
pad8.Reversed = True

sketch15 = doc.addObject("Sketcher::SketchObject", "Sketch014")
body.addObject(sketch15)
sketch15.AttachmentSupport = (doc.XY_Plane, [""])
sketch15.MapMode = "FlatFace"
sketch15.addGeometry(Part.Circle(V(23.665754, 13.59, 0), V(0, 0, 1), 2.220956), False)
sketch15.addGeometry(Part.Circle(V(23.665754, 13.59, 0), V(0, 0, 1), 1.475), False)
sketch15.addGeometry(Part.Circle(V(-23.736, 13.59, 0), V(0, 0, 1), 2.214708), False)
sketch15.addGeometry(Part.Circle(V(-23.736, 13.59, 0), V(0, 0, 1), 1.475), False)
sketch15.addConstraint(Sketcher.Constraint("Coincident", 1, 3, 0, 3))
sketch15.addConstraint(Sketcher.Constraint("Coincident", 3, 3, 2, 3))
sketch15.addConstraint(Sketcher.Constraint("Equal", 1, 3))
sketch15.addConstraint(Sketcher.Constraint("Horizontal", 1, 3, 2, 3))
sketch15.addConstraint(Sketcher.Constraint("Diameter", 1, Q("2.95 mm")))
sketch15.addConstraint(Sketcher.Constraint("Diameter", 0, Q("4.441911 mm")))
sketch15.addConstraint(Sketcher.Constraint("DistanceY", -1, 1, 0, 3, Q("13.59 mm")))
sketch15.addConstraint(Sketcher.Constraint("Diameter", 2, Q("4.429416 mm")))
sketch15.addConstraint(Sketcher.Constraint("DistanceX", 2, 3, -1, 1, Q("23.736 mm")))
sketch15.addConstraint(Sketcher.Constraint("DistanceX", -1, 1, 0, 3, Q("23.665754 mm")))
pad9 = doc.addObject("PartDesign::Pad", "Pad008")
body.addObject(pad9)
pad9.Profile = sketch15
pad9.Length = 3.175

sketch16 = doc.addObject("Sketcher::SketchObject", "Sketch015")
body.addObject(sketch16)
sketch16.AttachmentSupport = (doc.XZ_Plane, [""])
sketch16.MapMode = "FlatFace"
sketch16.AttachmentOffset = App.Placement(V(0, 0, 14.8), App.Rotation())
sketch16.addGeometry(Part.LineSegment(V(-5.17, 3.175, 0), V(22.83, 3.175, 0)), False)
sketch16.addGeometry(Part.ArcOfCircle(Part.Circle(V(8.83, -7.450719, 0), V(0, 0, 1), 17.575719), math.radians(37.19777), math.radians(142.80223)), False)
sketch16.addGeometry(Part.Circle(V(8.83, 6.65, 0), V(0, 0, 1), 1.475), False)
sketch16.addConstraint(Sketcher.Constraint("Coincident", 0, 1, 1, 2))
sketch16.addConstraint(Sketcher.Constraint("Coincident", 1, 1, 0, 2))
sketch16.addConstraint(Sketcher.Constraint("Horizontal", 0))
sketch16.addConstraint(Sketcher.Constraint("Vertical", 1, 3, 2, 3))
sketch16.addConstraint(Sketcher.Constraint("Diameter", 2, Q("2.95 mm")))
sketch16.addConstraint(Sketcher.Constraint("DistanceX", 0, 1, 0, 2, Q("28 mm")))
sketch16.addConstraint(Sketcher.Constraint("DistanceX", -1, 1, 1, 3, Q("8.83 mm")))
sketch16.addConstraint(Sketcher.Constraint("DistanceY", -1, 1, 2, 3, Q("6.65 mm")))
sketch16.addConstraint(Sketcher.Constraint("Radius", 1, Q("17.575719 mm")))
sketch16.addConstraint(Sketcher.Constraint("DistanceY", -1, 1, 0, 1, Q("3.175 mm")))
pad10 = doc.addObject("PartDesign::Pad", "Pad009")
body.addObject(pad10)
pad10.Profile = sketch16
pad10.Length = 4
pad10.Reversed = True

doc.recompute()
